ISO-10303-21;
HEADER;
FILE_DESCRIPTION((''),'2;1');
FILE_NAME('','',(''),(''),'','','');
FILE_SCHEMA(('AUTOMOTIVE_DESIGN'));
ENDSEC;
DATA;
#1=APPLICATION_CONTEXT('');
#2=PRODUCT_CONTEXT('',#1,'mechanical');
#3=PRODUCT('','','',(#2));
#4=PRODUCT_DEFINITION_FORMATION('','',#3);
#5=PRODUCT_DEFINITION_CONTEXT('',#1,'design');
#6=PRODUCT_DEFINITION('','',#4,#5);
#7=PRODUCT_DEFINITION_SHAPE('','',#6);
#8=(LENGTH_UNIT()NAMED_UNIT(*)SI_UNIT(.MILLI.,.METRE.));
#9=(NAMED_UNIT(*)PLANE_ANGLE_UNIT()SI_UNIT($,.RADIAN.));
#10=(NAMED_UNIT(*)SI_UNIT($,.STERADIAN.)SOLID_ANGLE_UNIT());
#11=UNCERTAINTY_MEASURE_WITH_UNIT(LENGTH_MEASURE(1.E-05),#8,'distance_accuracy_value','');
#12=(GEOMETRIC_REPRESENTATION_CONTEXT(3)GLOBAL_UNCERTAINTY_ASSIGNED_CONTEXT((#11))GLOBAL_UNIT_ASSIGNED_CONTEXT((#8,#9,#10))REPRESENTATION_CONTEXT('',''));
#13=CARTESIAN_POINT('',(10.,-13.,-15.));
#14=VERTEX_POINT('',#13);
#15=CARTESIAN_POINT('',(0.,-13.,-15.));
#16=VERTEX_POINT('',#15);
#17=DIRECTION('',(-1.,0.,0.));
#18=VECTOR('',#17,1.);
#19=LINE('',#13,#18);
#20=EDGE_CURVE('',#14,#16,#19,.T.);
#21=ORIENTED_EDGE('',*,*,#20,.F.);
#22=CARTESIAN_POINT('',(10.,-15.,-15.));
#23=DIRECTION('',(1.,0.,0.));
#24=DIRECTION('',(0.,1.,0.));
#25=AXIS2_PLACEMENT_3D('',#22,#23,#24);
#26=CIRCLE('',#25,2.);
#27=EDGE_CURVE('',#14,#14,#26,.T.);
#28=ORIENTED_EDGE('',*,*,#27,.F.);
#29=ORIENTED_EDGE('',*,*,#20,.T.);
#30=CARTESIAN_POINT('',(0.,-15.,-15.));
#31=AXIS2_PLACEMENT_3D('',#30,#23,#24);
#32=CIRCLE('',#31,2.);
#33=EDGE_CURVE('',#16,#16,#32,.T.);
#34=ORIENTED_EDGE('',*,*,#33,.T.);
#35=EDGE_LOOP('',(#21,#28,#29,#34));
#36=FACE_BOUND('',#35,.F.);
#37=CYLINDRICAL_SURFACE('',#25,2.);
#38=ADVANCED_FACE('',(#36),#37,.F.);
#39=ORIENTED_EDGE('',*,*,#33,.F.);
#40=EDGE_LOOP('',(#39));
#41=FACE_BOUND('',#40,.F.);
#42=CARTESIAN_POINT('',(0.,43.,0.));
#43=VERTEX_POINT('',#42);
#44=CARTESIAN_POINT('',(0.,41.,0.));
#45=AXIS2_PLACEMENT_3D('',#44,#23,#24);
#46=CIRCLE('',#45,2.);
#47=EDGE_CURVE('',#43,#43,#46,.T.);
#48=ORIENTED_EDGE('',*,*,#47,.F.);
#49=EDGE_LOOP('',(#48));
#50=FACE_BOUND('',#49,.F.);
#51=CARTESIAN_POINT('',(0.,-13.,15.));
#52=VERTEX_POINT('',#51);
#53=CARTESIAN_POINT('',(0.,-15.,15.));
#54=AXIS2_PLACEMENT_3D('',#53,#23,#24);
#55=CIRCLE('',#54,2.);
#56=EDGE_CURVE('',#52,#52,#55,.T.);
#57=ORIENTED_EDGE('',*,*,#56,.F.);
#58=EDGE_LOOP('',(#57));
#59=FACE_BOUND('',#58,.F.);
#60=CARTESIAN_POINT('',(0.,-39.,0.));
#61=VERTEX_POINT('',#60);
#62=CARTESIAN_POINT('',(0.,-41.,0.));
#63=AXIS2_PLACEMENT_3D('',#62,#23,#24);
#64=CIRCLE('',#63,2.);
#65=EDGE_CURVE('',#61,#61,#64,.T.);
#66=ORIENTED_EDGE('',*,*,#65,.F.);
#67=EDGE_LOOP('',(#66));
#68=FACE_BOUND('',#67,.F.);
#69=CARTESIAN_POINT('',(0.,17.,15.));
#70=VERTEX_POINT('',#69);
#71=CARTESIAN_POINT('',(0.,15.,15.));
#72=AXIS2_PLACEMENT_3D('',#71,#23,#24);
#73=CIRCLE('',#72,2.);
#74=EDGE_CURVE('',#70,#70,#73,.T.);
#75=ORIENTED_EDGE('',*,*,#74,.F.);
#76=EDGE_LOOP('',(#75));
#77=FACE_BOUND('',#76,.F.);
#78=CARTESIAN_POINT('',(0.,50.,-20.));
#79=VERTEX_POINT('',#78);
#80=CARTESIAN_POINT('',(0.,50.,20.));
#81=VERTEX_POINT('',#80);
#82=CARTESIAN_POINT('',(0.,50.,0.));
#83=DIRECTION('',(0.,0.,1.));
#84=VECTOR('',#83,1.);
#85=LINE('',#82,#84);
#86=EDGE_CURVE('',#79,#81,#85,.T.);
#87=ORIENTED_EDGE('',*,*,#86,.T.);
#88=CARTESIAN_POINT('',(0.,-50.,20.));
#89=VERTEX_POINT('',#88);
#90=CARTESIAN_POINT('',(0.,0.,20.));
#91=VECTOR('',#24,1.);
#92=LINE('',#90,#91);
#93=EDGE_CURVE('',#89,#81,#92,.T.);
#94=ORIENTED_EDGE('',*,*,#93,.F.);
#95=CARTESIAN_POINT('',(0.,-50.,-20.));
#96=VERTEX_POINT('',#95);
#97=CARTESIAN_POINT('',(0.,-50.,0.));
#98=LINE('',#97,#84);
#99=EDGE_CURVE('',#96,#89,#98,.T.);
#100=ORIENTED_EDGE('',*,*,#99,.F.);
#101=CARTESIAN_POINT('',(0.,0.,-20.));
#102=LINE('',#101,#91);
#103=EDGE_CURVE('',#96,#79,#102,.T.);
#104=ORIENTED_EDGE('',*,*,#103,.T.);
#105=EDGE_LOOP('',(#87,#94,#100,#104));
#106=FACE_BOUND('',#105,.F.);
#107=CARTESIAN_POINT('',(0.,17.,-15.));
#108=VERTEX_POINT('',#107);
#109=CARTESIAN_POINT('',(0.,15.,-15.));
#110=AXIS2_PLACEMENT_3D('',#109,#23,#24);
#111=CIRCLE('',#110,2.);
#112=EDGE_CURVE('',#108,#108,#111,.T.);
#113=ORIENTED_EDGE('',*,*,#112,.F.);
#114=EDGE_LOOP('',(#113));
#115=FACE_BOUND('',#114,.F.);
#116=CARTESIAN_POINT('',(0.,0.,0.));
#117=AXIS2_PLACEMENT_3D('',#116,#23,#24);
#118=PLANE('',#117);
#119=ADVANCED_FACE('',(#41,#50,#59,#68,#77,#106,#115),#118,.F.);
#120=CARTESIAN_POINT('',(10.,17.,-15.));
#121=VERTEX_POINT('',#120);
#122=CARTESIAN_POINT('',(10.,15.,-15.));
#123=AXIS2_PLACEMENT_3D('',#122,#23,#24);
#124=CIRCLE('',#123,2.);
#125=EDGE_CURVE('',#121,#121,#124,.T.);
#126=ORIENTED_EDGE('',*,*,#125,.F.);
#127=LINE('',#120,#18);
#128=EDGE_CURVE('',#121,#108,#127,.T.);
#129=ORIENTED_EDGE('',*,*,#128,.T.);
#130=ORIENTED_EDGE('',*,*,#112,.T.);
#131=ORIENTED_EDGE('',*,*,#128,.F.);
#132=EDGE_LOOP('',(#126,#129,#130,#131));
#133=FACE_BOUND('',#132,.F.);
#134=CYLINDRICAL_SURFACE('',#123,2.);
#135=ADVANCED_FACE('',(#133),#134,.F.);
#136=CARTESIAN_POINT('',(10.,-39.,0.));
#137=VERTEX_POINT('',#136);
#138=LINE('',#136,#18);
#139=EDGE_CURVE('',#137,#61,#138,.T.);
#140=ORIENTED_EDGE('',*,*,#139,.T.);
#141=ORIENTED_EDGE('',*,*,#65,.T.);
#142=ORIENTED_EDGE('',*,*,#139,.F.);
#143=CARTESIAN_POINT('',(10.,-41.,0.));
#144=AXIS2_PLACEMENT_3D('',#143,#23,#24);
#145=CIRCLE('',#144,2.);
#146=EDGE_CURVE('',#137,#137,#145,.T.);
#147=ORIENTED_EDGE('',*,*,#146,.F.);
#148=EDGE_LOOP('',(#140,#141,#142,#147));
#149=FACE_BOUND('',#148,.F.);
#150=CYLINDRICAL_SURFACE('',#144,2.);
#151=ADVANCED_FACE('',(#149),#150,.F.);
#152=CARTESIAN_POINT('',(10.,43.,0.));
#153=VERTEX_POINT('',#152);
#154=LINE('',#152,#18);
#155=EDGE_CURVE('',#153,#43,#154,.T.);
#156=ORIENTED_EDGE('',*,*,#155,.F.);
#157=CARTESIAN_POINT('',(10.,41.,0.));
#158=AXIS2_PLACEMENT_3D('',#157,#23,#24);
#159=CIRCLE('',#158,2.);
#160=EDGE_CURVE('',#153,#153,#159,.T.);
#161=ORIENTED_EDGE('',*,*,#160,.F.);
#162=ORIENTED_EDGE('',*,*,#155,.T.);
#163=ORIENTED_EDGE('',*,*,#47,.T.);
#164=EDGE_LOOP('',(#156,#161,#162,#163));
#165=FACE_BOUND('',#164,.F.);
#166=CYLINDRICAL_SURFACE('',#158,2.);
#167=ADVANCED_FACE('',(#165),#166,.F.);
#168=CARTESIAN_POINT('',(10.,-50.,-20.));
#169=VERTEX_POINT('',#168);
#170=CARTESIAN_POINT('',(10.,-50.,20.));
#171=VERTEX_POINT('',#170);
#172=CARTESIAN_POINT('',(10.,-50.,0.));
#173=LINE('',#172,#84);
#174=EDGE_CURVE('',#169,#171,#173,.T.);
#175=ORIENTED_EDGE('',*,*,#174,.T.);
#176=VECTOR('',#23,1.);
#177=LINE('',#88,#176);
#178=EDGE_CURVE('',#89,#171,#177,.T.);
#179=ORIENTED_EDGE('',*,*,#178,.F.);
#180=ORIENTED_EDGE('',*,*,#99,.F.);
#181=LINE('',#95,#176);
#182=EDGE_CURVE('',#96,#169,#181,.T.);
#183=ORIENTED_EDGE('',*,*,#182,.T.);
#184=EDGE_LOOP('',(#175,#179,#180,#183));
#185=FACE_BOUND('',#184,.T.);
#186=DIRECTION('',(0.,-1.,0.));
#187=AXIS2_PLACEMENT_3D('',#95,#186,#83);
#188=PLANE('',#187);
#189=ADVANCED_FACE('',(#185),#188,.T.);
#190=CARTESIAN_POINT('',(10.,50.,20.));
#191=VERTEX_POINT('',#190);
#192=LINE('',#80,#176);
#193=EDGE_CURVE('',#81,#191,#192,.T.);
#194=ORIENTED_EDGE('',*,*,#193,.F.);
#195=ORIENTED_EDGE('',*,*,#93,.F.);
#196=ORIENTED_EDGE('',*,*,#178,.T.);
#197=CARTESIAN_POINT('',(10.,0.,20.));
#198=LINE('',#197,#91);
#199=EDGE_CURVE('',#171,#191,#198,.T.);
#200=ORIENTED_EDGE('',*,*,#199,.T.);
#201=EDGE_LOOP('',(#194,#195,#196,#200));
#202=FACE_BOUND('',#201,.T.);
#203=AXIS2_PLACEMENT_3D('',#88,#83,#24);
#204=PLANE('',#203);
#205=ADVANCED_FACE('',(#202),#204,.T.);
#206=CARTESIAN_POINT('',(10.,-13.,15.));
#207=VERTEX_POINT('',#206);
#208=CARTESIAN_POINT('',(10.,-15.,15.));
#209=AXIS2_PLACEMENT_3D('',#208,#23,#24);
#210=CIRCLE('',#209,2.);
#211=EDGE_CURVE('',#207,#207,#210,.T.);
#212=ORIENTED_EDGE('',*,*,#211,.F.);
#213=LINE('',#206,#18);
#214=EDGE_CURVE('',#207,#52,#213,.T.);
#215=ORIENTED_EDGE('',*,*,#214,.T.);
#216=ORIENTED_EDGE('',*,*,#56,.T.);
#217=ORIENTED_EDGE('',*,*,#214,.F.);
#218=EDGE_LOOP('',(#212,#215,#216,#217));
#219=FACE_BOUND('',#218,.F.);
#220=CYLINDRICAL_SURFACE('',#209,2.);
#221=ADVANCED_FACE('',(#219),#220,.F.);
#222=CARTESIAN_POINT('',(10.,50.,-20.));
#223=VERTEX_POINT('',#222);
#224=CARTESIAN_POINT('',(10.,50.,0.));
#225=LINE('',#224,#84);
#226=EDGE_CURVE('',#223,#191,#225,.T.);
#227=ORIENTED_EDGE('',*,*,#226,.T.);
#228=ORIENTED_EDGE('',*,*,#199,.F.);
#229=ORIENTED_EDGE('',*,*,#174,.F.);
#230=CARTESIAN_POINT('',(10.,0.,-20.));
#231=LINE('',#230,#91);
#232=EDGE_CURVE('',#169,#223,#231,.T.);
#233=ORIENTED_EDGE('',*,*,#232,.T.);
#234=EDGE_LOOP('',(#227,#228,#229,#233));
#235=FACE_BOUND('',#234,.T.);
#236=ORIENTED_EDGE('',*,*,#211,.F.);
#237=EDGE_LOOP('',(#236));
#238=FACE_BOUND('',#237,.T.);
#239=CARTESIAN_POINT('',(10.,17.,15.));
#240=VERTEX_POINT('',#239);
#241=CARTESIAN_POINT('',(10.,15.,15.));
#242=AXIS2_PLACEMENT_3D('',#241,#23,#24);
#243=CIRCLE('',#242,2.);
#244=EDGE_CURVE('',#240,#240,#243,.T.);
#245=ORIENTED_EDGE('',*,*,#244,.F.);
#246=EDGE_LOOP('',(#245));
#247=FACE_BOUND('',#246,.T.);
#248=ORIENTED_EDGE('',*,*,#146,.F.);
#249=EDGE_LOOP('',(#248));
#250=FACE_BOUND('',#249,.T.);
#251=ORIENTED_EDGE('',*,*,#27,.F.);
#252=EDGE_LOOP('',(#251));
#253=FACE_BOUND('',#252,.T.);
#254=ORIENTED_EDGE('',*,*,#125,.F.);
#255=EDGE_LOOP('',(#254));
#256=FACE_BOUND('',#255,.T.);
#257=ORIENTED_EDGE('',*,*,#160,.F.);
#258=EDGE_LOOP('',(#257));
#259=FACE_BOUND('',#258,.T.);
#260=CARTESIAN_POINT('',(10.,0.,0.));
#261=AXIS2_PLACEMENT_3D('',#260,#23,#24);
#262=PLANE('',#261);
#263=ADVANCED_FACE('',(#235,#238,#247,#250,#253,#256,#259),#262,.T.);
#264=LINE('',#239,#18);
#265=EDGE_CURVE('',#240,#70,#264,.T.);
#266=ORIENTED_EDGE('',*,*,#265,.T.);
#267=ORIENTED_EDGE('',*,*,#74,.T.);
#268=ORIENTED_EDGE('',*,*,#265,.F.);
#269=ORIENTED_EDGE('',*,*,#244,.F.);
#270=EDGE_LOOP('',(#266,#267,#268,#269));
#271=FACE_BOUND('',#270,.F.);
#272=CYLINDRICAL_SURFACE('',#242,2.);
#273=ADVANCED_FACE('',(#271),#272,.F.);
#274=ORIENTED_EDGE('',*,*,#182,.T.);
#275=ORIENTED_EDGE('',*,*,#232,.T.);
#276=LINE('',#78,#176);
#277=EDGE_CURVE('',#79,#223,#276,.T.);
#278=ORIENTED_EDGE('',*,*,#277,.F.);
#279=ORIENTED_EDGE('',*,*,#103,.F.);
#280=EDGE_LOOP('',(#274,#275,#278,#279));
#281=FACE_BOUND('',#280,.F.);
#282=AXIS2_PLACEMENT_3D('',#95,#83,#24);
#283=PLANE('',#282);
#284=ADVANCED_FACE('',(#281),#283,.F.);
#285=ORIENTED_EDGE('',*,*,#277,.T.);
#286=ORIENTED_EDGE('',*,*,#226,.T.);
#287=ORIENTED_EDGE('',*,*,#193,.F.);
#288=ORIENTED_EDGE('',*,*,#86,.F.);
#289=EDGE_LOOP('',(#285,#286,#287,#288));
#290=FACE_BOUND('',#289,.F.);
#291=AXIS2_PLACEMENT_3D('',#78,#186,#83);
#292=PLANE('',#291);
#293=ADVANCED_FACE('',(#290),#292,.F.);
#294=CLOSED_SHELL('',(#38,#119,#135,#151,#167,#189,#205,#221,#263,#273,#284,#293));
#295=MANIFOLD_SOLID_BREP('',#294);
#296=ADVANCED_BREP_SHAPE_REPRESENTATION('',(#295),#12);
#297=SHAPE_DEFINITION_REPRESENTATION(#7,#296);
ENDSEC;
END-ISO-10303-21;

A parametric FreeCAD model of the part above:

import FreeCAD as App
import Part
import Sketcher
from FreeCAD import Vector
Q = App.Units.Quantity

doc = App.newDocument("Part")
body = doc.addObject("PartDesign::Body", "Body")

# Sketch on YZ plane
sketch1 = body.newObject("Sketcher::SketchObject", "Sketch")
sketch1.AttachmentSupport = (doc.getObject("YZ_Plane"), [""])
sketch1.MapMode = "FlatFace"
sketch1.addGeometry(Part.LineSegment(Vector(-50, 20, 0), Vector(-50, -20, 0)), False)
sketch1.addGeometry(Part.LineSegment(Vector(-50, -20, 0), Vector(50, -20, 0)), False)
sketch1.addGeometry(Part.LineSegment(Vector(50, -20, 0), Vector(50, 20, 0)), False)
sketch1.addGeometry(Part.LineSegment(Vector(50, 20, 0), Vector(-50, 20, 0)), False)
sketch1.addConstraint(Sketcher.Constraint("Coincident", 0, 2, 1, 1))
sketch1.addConstraint(Sketcher.Constraint("Coincident", 1, 2, 2, 1))
sketch1.addConstraint(Sketcher.Constraint("Coincident", 2, 2, 3, 1))
sketch1.addConstraint(Sketcher.Constraint("Coincident", 3, 2, 0, 1))
sketch1.addConstraint(Sketcher.Constraint("Vertical", 0))
sketch1.addConstraint(Sketcher.Constraint("Horizontal", 1))
sketch1.addConstraint(Sketcher.Constraint("Vertical", 2))
sketch1.addConstraint(Sketcher.Constraint("Horizontal", 3))
sketch1.addConstraint(Sketcher.Constraint("Symmetric", 0, 2, 2, 2, -1, 1))
sketch1.addConstraint(Sketcher.Constraint("DistanceX", 1, 1, 1, 2, Q("100 mm")))
sketch1.addConstraint(Sketcher.Constraint("DistanceY", 0, 2, 0, 1, Q("40 mm")))
pad1 = body.newObject("PartDesign::Pad", "Pad")
pad1.Profile = sketch1
pad1.Length = 10

# Sketch on YZ plane
sketch2 = body.newObject("Sketcher::SketchObject", "Sketch001")
sketch2.AttachmentSupport = (doc.getObject("YZ_Plane"), [""])
sketch2.MapMode = "FlatFace"
sketch2.AttachmentOffset = App.Placement(Vector(0, 0, 10), App.Rotation())
sketch2.addGeometry(Part.Circle(Vector(-15, 15, 0), Vector(0, 0, 1), 2), False)
sketch2.addGeometry(Part.Circle(Vector(15, 15, 0), Vector(0, 0, 1), 2), False)
sketch2.addGeometry(Part.Circle(Vector(-15, -15, 0), Vector(0, 0, 1), 2), False)
sketch2.addGeometry(Part.Circle(Vector(15, -15, 0), Vector(0, 0, 1), 2), False)
sketch2.addConstraint(Sketcher.Constraint("Equal", 0, 1))
sketch2.addConstraint(Sketcher.Constraint("Equal", 1, 2))
sketch2.addConstraint(Sketcher.Constraint("Equal", 2, 3))
sketch2.addConstraint(Sketcher.Constraint("Symmetric", 1, 3, 2, 3, -1, 1))
sketch2.addConstraint(Sketcher.Constraint("Symmetric", 0, 3, 3, 3, -1, 1))
sketch2.addConstraint(Sketcher.Constraint("Symmetric", 0, 3, 1, 3, -2))
sketch2.addConstraint(Sketcher.Constraint("Diameter", 0, Q("4 mm")))
sketch2.addConstraint(Sketcher.Constraint("DistanceX", 0, 3, -1, 1, Q("15 mm")))
sketch2.addConstraint(Sketcher.Constraint("DistanceY", -1, 1, 0, 3, Q("15 mm")))
pocket1 = body.newObject("PartDesign::Pocket", "Pocket")
pocket1.Profile = sketch2
pocket1.Type = "ThroughAll"

# Sketch on YZ plane
sketch3 = body.newObject("Sketcher::SketchObject", "Sketch002")
sketch3.AttachmentSupport = (doc.getObject("YZ_Plane"), [""])
sketch3.MapMode = "FlatFace"
sketch3.AttachmentOffset = App.Placement(Vector(0, 0, 10), App.Rotation())
sketch3.addGeometry(Part.Circle(Vector(-41, 0, 0), Vector(0, 0, 1), 2), False)
sketch3.addGeometry(Part.Circle(Vector(41, 0, 0), Vector(0, 0, 1), 2), False)
sketch3.addConstraint(Sketcher.Constraint("Equal", 0, 1))
sketch3.addConstraint(Sketcher.Constraint("Symmetric", 0, 3, 1, 3, -1, 1))
sketch3.addConstraint(Sketcher.Constraint("PointOnObject", 0, 3, -1))
sketch3.addConstraint(Sketcher.Constraint("Diameter", 0, Q("4 mm")))
sketch3.addConstraint(Sketcher.Constraint("DistanceX", 0, 3, -1, 1, Q("41 mm")))
pocket2 = body.newObject("PartDesign::Pocket", "Pocket001")
pocket2.Profile = sketch3
pocket2.Type = "ThroughAll"

doc.recompute()
